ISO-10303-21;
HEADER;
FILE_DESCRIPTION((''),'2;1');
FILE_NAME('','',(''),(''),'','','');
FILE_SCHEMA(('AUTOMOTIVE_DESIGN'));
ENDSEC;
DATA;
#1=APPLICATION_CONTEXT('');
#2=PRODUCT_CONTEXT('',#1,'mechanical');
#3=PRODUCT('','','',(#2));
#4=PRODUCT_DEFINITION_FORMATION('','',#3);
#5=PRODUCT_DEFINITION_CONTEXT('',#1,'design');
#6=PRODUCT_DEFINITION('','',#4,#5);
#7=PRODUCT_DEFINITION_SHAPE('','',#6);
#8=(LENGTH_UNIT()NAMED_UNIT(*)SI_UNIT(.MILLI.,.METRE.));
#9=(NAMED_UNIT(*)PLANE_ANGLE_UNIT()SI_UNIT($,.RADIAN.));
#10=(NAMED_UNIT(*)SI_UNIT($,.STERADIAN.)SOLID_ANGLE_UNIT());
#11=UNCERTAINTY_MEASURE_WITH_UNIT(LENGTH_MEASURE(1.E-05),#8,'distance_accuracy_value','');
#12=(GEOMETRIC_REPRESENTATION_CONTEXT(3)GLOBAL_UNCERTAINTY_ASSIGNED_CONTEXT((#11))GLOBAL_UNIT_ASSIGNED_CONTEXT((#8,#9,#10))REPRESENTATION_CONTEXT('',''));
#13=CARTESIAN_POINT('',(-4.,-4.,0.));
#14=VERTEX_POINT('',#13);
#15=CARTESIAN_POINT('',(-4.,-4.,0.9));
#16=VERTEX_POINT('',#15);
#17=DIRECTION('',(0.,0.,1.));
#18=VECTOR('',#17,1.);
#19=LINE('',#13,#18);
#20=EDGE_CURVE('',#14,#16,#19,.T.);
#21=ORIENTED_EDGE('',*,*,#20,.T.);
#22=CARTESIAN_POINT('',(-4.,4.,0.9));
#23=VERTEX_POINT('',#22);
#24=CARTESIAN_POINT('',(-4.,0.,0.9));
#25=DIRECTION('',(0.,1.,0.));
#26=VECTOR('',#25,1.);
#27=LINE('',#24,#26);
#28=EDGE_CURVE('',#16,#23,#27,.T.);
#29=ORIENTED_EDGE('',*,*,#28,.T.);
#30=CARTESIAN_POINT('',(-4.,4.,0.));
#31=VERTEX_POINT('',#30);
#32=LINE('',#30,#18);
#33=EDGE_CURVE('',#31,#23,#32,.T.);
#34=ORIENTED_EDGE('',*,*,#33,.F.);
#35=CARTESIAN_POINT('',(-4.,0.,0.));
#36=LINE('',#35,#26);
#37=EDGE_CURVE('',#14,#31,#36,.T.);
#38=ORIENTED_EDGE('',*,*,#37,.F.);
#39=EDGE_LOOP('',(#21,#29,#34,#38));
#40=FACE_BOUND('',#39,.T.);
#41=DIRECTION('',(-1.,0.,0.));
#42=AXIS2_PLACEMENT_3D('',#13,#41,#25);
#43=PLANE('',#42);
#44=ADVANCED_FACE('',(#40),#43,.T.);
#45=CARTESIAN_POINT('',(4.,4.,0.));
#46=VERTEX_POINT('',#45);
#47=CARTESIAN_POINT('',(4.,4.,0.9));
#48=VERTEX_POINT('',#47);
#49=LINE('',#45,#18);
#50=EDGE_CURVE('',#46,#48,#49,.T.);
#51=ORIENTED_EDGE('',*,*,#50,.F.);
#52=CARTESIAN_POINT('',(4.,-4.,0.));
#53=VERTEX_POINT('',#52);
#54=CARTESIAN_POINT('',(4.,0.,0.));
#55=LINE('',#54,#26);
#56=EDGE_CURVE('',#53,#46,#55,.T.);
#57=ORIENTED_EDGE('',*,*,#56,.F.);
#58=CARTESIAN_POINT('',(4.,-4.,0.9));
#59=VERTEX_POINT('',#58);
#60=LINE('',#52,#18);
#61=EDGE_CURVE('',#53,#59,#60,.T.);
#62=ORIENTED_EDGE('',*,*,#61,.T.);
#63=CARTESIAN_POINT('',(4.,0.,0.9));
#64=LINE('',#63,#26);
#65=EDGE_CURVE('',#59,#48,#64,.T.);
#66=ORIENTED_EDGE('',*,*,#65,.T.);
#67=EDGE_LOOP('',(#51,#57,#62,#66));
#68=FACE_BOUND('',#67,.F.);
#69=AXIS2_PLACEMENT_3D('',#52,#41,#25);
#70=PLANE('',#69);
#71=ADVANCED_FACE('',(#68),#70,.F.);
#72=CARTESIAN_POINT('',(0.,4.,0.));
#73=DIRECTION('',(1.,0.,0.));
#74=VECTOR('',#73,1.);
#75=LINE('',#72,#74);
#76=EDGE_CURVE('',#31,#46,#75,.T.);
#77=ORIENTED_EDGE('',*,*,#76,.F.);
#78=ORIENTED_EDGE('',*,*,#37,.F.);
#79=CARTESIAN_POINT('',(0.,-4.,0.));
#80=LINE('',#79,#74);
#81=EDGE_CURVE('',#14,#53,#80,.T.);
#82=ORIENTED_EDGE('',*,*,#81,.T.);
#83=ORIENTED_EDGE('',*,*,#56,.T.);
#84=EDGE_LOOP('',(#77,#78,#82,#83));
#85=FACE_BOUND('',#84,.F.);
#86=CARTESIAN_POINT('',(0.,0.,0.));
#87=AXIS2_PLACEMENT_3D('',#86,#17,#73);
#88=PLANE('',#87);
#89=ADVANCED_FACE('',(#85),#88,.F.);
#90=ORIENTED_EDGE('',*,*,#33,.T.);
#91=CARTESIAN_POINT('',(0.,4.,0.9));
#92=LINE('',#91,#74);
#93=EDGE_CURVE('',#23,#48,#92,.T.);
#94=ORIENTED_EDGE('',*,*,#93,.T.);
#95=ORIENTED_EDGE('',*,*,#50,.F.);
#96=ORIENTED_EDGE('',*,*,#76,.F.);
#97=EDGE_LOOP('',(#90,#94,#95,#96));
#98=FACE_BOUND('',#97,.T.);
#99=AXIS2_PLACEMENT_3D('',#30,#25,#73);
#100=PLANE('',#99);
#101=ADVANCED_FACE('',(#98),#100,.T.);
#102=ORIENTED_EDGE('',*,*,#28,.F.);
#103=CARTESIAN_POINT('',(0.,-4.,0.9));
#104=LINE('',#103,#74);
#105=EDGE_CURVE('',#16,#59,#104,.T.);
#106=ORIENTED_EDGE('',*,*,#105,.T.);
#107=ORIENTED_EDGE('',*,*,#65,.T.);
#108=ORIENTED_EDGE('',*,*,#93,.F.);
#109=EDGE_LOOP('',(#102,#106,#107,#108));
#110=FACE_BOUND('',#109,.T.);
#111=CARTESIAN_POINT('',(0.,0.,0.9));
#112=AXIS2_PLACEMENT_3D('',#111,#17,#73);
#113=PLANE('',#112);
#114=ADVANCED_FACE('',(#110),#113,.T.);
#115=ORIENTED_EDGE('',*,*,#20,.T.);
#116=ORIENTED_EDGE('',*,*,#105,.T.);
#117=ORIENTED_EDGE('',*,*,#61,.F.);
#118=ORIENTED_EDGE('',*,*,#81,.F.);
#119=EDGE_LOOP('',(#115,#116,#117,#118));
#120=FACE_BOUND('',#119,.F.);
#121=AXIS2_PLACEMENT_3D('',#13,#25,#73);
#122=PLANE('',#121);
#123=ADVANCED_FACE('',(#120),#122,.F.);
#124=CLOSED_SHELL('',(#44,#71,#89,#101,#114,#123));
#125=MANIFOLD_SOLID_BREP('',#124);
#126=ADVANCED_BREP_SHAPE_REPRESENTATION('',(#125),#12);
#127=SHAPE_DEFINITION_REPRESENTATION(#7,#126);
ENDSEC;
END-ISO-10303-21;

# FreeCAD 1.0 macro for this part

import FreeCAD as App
import Part
import Sketcher

V = App.Vector


def add_polygon(sketch, points):
    """Adds a closed chain of lines whose ends are joined by coincident constraints."""
    first, n = sketch.GeometryCount, len(points)
    for a, b in zip(points, points[1:] + points[:1]):
        sketch.addGeometry(Part.LineSegment(App.Vector(*a, 0), App.Vector(*b, 0)), False)
    for i in range(n):
        sketch.addConstraint(Sketcher.Constraint("Coincident", first + i, 2, first + (i + 1) % n, 1))

doc = App.newDocument("Part")
body = doc.addObject("PartDesign::Body", "Body")

sketch1 = body.newObject("Sketcher::SketchObject", "Sketch")
sketch1.AttachmentSupport = (doc.getObject("XY_Plane"), [""])
sketch1.MapMode = "FlatFace"
add_polygon(sketch1, [(-4, 4), (-4, -4), (4, -4), (4, 4)])
sketch1.addConstraint(Sketcher.Constraint("Vertical", 0))
sketch1.addConstraint(Sketcher.Constraint("Horizontal", 1))
sketch1.addConstraint(Sketcher.Constraint("Vertical", 2))
sketch1.addConstraint(Sketcher.Constraint("Horizontal", 3))
sketch1.addConstraint(Sketcher.Constraint("Symmetric", 0, 2, 2, 2, -1, 1))
sketch1.addConstraint(Sketcher.Constraint("Equal", 3, 0))
sketch1.addConstraint(Sketcher.Constraint("DistanceX", 1, 1, 1, 2, 8.0))
pad1 = body.newObject("PartDesign::Pad", "Pad")
pad1.Profile = sketch1
pad1.Length = 0.9

doc.recompute()
